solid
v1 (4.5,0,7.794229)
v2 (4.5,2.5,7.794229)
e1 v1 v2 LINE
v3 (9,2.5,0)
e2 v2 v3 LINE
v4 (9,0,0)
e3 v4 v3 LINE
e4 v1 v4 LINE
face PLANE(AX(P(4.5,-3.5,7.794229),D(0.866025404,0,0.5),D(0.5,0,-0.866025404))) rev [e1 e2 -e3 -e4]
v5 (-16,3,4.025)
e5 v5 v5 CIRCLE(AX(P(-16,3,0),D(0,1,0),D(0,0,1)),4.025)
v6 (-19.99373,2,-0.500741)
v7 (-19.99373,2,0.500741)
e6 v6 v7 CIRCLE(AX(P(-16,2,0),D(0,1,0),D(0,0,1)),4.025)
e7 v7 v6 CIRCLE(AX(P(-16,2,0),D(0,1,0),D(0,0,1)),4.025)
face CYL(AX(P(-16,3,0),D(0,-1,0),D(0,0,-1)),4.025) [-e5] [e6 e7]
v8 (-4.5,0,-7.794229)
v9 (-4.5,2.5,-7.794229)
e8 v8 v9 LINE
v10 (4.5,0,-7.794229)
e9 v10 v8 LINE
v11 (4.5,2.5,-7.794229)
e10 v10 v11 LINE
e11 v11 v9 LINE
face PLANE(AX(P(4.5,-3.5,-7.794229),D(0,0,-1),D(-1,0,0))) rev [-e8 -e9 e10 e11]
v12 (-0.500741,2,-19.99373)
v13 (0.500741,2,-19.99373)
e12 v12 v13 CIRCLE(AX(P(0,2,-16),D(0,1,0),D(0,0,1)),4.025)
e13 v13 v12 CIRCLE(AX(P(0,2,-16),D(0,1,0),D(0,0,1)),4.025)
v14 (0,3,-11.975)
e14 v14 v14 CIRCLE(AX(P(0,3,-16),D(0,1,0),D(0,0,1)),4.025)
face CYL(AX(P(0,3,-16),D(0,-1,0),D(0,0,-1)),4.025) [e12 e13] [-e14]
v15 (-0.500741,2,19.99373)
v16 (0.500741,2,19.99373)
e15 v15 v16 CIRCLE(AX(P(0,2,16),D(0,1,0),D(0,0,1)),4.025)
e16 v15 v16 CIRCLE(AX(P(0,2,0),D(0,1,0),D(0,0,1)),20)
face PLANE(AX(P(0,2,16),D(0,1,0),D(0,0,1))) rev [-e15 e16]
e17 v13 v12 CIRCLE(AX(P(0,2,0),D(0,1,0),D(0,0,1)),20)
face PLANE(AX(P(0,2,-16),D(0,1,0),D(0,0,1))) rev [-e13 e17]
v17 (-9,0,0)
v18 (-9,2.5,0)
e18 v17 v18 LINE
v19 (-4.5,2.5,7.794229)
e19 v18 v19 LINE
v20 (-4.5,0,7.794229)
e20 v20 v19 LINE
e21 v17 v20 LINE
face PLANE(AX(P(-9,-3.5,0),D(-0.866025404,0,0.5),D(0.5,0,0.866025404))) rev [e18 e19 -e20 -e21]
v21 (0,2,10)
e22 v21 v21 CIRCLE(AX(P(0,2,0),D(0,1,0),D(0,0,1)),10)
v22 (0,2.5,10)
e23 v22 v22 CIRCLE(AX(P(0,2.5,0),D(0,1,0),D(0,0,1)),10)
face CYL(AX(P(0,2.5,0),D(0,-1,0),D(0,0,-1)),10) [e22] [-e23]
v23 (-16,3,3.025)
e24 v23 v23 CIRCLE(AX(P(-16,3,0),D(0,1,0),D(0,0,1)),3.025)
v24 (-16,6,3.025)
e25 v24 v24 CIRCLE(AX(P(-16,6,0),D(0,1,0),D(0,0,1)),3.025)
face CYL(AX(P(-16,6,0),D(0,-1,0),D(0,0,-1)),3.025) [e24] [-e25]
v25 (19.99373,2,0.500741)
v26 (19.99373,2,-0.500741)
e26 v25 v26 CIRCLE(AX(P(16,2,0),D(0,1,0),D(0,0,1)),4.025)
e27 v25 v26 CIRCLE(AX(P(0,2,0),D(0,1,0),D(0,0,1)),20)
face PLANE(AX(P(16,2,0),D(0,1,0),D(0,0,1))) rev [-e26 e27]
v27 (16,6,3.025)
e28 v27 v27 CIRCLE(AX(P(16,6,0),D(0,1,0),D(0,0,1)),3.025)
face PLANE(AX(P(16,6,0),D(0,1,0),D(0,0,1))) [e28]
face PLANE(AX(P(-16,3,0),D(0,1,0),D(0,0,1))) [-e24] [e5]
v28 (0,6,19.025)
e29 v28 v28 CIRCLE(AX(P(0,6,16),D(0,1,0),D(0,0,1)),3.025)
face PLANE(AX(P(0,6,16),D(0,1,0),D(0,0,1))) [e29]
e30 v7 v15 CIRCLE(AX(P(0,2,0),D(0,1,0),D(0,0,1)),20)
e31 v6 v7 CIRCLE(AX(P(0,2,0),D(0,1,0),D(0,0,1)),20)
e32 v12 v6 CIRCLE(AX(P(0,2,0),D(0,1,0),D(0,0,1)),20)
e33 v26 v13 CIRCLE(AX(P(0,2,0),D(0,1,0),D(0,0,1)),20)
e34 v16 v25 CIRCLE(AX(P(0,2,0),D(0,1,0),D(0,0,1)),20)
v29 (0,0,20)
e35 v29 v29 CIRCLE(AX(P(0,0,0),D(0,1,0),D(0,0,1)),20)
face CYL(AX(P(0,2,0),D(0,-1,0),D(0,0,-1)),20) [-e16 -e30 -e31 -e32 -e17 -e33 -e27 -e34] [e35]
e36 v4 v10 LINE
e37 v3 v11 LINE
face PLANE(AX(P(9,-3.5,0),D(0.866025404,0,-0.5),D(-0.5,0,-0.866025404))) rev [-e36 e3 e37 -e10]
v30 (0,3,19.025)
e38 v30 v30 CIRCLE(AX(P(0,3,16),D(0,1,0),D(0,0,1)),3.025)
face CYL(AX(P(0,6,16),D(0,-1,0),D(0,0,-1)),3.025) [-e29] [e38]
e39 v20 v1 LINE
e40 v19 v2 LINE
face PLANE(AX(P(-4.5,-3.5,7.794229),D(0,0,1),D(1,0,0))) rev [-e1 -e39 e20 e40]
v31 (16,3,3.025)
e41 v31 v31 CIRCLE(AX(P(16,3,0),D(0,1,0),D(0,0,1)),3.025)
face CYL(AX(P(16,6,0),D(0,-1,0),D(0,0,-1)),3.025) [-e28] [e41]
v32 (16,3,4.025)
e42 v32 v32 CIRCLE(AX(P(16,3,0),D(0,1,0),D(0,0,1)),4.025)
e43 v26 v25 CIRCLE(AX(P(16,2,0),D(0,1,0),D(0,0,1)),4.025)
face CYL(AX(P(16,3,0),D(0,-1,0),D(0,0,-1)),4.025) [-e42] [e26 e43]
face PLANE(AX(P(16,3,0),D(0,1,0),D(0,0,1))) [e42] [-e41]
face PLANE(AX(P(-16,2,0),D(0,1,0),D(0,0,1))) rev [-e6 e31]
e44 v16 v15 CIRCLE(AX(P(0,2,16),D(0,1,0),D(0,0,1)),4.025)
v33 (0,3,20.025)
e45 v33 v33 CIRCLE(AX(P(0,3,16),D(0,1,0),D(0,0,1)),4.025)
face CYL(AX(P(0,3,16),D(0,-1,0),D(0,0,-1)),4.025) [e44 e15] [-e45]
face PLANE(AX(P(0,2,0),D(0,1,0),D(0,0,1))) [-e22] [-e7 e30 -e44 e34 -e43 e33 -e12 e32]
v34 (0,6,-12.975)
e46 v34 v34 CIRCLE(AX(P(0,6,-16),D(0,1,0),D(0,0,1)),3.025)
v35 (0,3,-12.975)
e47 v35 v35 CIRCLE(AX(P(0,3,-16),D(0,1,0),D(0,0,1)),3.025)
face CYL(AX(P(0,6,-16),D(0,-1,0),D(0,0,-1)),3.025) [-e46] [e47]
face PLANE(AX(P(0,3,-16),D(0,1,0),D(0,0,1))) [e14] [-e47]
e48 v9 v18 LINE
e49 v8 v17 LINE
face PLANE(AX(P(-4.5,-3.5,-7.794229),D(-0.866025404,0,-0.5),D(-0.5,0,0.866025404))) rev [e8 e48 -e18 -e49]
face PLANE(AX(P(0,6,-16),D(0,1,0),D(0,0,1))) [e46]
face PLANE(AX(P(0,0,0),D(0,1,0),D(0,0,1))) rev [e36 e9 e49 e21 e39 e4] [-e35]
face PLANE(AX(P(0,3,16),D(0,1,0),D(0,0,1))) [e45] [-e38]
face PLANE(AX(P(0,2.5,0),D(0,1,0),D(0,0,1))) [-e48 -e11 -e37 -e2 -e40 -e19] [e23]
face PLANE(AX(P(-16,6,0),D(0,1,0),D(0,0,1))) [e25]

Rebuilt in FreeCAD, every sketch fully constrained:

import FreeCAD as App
import Part
import Sketcher

V = App.Vector
Q = App.Units.Quantity

doc = App.newDocument("Part")
body = doc.addObject("PartDesign::Body", "Body")

# Sketch on XZ plane
sketch1 = body.newObject("Sketcher::SketchObject", "Sketch")
sketch1.AttachmentSupport = (doc.getObject("XZ_Plane"), [""])
sketch1.MapMode = "FlatFace"
sketch1.addGeometry(Part.Circle(V(0, 0, 0), V(0, 0, 1), 20), False)
sketch1.addConstraint([
    Sketcher.Constraint("Coincident", 0, 3, -1, 1),
    Sketcher.Constraint("Diameter", 0, 40.0),
])
pad1 = body.newObject("PartDesign::Pad", "Pad")
pad1.Profile = sketch1
pad1.Length = 2
pad1.Reversed = True

# Sketch on XZ plane
sketch2 = body.newObject("Sketcher::SketchObject", "Sketch001")
sketch2.AttachmentSupport = (doc.getObject("XZ_Plane"), [""])
sketch2.MapMode = "FlatFace"
sketch2.AttachmentOffset = App.Placement(V(0, 0, -2), App.Rotation())
sketch2.addGeometry([
    Part.Circle(V(0, -16, 0), V(0, 0, 1), 3),
    Part.Circle(V(16, 0, 0), V(0, 0, 1), 3),
    Part.Circle(V(0, 16, 0), V(0, 0, 1), 3),
    Part.Circle(V(-16, 0, 0), V(0, 0, 1), 3),
], False)
sketch2.addConstraint([
    Sketcher.Constraint("Equal", 0, 1),
    Sketcher.Constraint("Equal", 1, 2),
    Sketcher.Constraint("Equal", 2, 3),
    Sketcher.Constraint("Symmetric", 0, 3, 2, 3, -1, 1),
    Sketcher.Constraint("Symmetric", 1, 3, 3, 3, -1, 1),
    Sketcher.Constraint("PointOnObject", 0, 3, -2),
    Sketcher.Constraint("PointOnObject", 1, 3, -1),
    Sketcher.Constraint("Diameter", 0, 6.05),
    Sketcher.Constraint("DistanceY", 0, 3, -1, 1, 16.0),
    Sketcher.Constraint("DistanceX", -1, 1, 1, 3, 16.0),
])
pad2 = body.newObject("PartDesign::Pad", "Pad001")
pad2.Profile = sketch2
pad2.Length = 4
pad2.Reversed = True

# Sketch on XZ plane
sketch3 = body.newObject("Sketcher::SketchObject", "Sketch002")
sketch3.AttachmentSupport = (doc.getObject("XZ_Plane"), [""])
sketch3.MapMode = "FlatFace"
sketch3.AttachmentOffset = App.Placement(V(0, 0, -2), App.Rotation())
sketch3.addGeometry(Part.Circle(V(0, 0, 0), V(0, 0, 1), 10), False)
sketch3.addConstraint([
    Sketcher.Constraint("Coincident", 0, 3, -1, 1),
    Sketcher.Constraint("Diameter", 0, 20.0),
])
pad3 = body.newObject("PartDesign::Pad", "Pad002")
pad3.Profile = sketch3
pad3.Length = 0.5
pad3.Reversed = True

# Sketch on XZ plane
sketch4 = body.newObject("Sketcher::SketchObject", "Sketch003")
sketch4.AttachmentSupport = (doc.getObject("XZ_Plane"), [""])
sketch4.MapMode = "FlatFace"
sketch4.AttachmentOffset = App.Placement(V(0, 0, -2.5), App.Rotation())
sketch4.addGeometry([
    Part.LineSegment(V(4, 8, 0), V(9, 0, 0)),  # 0
    Part.LineSegment(V(9, 0, 0), V(4, -8, 0)),  # 1
    Part.LineSegment(V(4, -8, 0), V(-4, -8, 0)),  # 2
    Part.LineSegment(V(-4, -8, 0), V(-9, 0, 0)),  # 3
    Part.LineSegment(V(-9, 0, 0), V(-4, 8, 0)),  # 4
    Part.LineSegment(V(-4, 8, 0), V(4, 8, 0)),  # 5
], False)
sketch4.addConstraint([
    Sketcher.Constraint("Coincident", 0, 2, 1, 1),
    Sketcher.Constraint("Coincident", 1, 2, 2, 1),
    Sketcher.Constraint("Coincident", 2, 2, 3, 1),
    Sketcher.Constraint("Coincident", 3, 2, 4, 1),
    Sketcher.Constraint("Coincident", 4, 2, 5, 1),
    Sketcher.Constraint("Coincident", 5, 2, 0, 1),
    Sketcher.Constraint("Horizontal", 2),
    Sketcher.Constraint("Horizontal", 5),
    Sketcher.Constraint("Symmetric", 0, 2, 3, 2, -1, 1),
    Sketcher.Constraint("Symmetric", 1, 2, 4, 2, -1, 1),
    Sketcher.Constraint("PointOnObject", 0, 2, -1),
    Sketcher.Constraint("Parallel", 0, 3),
    Sketcher.Constraint("Vertical", 2, 2, 4, 2),
    Sketcher.Constraint("DistanceX", 2, 2, 2, 1, 9.0),
    Sketcher.Constraint("Angle", 0, Q("-60 deg")),
    Sketcher.Constraint("Distance", 0, 9.0),
])
pocket1 = body.newObject("PartDesign::Pocket", "Pocket")
pocket1.Profile = sketch4
pocket1.Length = 6
pocket1.Reversed = True

# Sketch on XZ plane
sketch5 = body.newObject("Sketcher::SketchObject", "Sketch004")
sketch5.AttachmentSupport = (doc.getObject("XZ_Plane"), [""])
sketch5.MapMode = "FlatFace"
sketch5.AttachmentOffset = App.Placement(V(0, 0, -2), App.Rotation())
sketch5.addGeometry([
    Part.Circle(V(16, 0, 0), V(0, 0, 1), 4),
    Part.Circle(V(0, -16, 0), V(0, 0, 1), 4),
    Part.Circle(V(0, 16, 0), V(0, 0, 1), 4),
    Part.Circle(V(-16, 0, 0), V(0, 0, 1), 4),
], False)
sketch5.addConstraint([
    Sketcher.Constraint("Equal", 0, 1),
    Sketcher.Constraint("Equal", 1, 2),
    Sketcher.Constraint("Equal", 2, 3),
    Sketcher.Constraint("Symmetric", 1, 3, 2, 3, -1, 1),
    Sketcher.Constraint("Symmetric", 0, 3, 3, 3, -1, 1),
    Sketcher.Constraint("PointOnObject", 0, 3, -1),
    Sketcher.Constraint("PointOnObject", 1, 3, -2),
    Sketcher.Constraint("Diameter", 0, 8.05),
    Sketcher.Constraint("DistanceX", -1, 1, 0, 3, 16.0),
    Sketcher.Constraint("DistanceY", 1, 3, -1, 1, 16.0),
])
pad4 = body.newObject("PartDesign::Pad", "Pad003")
pad4.Profile = sketch5
pad4.Length = 1
pad4.Reversed = True

doc.recompute()
